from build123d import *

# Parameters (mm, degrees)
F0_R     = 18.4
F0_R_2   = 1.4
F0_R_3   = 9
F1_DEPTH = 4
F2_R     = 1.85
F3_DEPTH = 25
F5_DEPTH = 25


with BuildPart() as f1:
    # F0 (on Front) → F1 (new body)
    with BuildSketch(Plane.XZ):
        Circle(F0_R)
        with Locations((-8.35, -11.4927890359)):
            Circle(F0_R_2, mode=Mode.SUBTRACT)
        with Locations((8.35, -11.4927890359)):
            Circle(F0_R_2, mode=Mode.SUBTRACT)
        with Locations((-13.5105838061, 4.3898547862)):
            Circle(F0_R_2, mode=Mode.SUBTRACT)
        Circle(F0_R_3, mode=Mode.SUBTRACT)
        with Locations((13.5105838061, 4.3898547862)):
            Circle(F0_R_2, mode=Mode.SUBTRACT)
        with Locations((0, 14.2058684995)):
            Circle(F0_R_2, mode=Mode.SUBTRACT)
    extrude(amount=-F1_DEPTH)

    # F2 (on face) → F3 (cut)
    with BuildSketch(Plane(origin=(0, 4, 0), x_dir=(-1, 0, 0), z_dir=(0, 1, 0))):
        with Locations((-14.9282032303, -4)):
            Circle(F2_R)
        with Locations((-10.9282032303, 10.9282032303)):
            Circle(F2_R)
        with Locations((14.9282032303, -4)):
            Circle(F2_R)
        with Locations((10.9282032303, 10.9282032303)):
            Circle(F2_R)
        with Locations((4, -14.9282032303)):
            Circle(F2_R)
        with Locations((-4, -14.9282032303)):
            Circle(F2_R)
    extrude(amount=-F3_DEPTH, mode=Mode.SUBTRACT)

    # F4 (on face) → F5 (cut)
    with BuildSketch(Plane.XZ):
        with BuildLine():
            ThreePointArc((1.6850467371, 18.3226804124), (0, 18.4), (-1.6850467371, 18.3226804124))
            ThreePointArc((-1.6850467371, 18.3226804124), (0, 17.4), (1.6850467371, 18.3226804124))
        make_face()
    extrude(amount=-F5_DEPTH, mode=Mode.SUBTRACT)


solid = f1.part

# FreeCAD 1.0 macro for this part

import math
import FreeCAD as App
import Part
import Sketcher

V = App.Vector

doc = App.newDocument("Part")
body = doc.addObject("PartDesign::Body", "Body")

sketch1 = body.newObject("Sketcher::SketchObject", "Sketch")
sketch1.AttachmentSupport = (doc.getObject("XZ_Plane"), [""])
sketch1.MapMode = "FlatFace"
sketch1.addGeometry([
    Part.Circle(V(0, 0, 0), V(0, 0, 1), 18.4),
    Part.Circle(V(-8.3, -11.5, 0), V(0, 0, 1), 1.4),
    Part.Circle(V(0, 0, 0), V(0, 0, 1), 9),
    Part.Circle(V(8.3, -11.5, 0), V(0, 0, 1), 1.4),
    Part.Circle(V(-13.5, 4.4, 0), V(0, 0, 1), 1.4),
    Part.Circle(V(0, 14.2, 0), V(0, 0, 1), 1.4),
    Part.Circle(V(13.5, 4.4, 0), V(0, 0, 1), 1.4),
], False)
sketch1.addConstraint([
    Sketcher.Constraint("Coincident", 0, 3, -1, 1),
    Sketcher.Constraint("Coincident", 2, 3, -1, 1),
    Sketcher.Constraint("Equal", 1, 3),
    Sketcher.Constraint("Equal", 3, 4),
    Sketcher.Constraint("Equal", 4, 5),
    Sketcher.Constraint("Equal", 5, 6),
    Sketcher.Constraint("Symmetric", 1, 3, 3, 3, -2),
    Sketcher.Constraint("Symmetric", 4, 3, 6, 3, -2),
    Sketcher.Constraint("PointOnObject", 5, 3, -2),
    Sketcher.Constraint("Diameter", 2, 18.0),
    Sketcher.Constraint("Diameter", 0, 36.8),
    Sketcher.Constraint("Diameter", 1, 2.8),
    Sketcher.Constraint("DistanceX", 1, 3, 3, 3, 16.7),
    Sketcher.Constraint("DistanceY", 1, 3, -1, 1, 11.492789),
    Sketcher.Constraint("DistanceY", -1, 1, 5, 3, 14.205868),
    Sketcher.Constraint("DistanceX", 4, 3, -1, 1, 13.510584),
    Sketcher.Constraint("DistanceY", -1, 1, 4, 3, 4.389855),
])
pad1 = body.newObject("PartDesign::Pad", "Pad")
pad1.Profile = sketch1
pad1.Length = 4
pad1.Reversed = True

sketch2 = body.newObject("Sketcher::SketchObject", "Sketch001")
sketch2.AttachmentSupport = (doc.getObject("XZ_Plane"), [""])
sketch2.MapMode = "FlatFace"
sketch2.AttachmentOffset = App.Placement(V(0, 0, -4), App.Rotation())
sketch2.addGeometry([
    Part.Circle(V(14.9, -4, 0), V(0, 0, 1), 1.9),
    Part.Circle(V(10.9, 10.9, 0), V(0, 0, 1), 1.9),
    Part.Circle(V(-14.9, -4, 0), V(0, 0, 1), 1.9),
    Part.Circle(V(-10.9, 10.9, 0), V(0, 0, 1), 1.9),
    Part.Circle(V(-4, -14.9, 0), V(0, 0, 1), 1.9),
    Part.Circle(V(4, -14.9, 0), V(0, 0, 1), 1.9),
], False)
sketch2.addConstraint([
    Sketcher.Constraint("Equal", 0, 1),
    Sketcher.Constraint("Equal", 1, 2),
    Sketcher.Constraint("Equal", 2, 3),
    Sketcher.Constraint("Equal", 3, 4),
    Sketcher.Constraint("Equal", 4, 5),
    Sketcher.Constraint("Symmetric", 0, 3, 2, 3, -2),
    Sketcher.Constraint("Symmetric", 1, 3, 3, 3, -2),
    Sketcher.Constraint("Symmetric", 4, 3, 5, 3, -2),
    Sketcher.Constraint("Diameter", 0, 3.7),
    Sketcher.Constraint("DistanceY", 0, 3, -1, 1, 4.0),
    Sketcher.Constraint("DistanceX", 4, 3, -1, 1, 4.0),
    Sketcher.Constraint("DistanceX", 1, 3, 0, 3, 4.0),
    Sketcher.Constraint("DistanceX", -1, 1, 0, 3, 14.928203),
    Sketcher.Constraint("DistanceY", -1, 1, 1, 3, 10.928203),
    Sketcher.Constraint("DistanceY", 4, 3, -1, 1, 14.928203),
])
pocket1 = body.newObject("PartDesign::Pocket", "Pocket")
pocket1.Profile = sketch2
pocket1.Length = 25
pocket1.Reversed = True

sketch3 = body.newObject("Sketcher::SketchObject", "Sketch002")
sketch3.AttachmentSupport = (doc.getObject("XZ_Plane"), [""])
sketch3.MapMode = "FlatFace"
sketch3.addGeometry([
    Part.ArcOfCircle(Part.Circle(V(0, 0, 0), V(0, 0, 1), 18.4), math.radians(84.75), math.radians(95.25)),
    Part.ArcOfCircle(Part.Circle(V(0, 19.4, 0), V(0, 0, 1), 2), math.radians(-147), math.radians(-33)),
], False)
sketch3.addConstraint([
    Sketcher.Constraint("Coincident", 0, 1, 1, 2),
    Sketcher.Constraint("Coincident", 1, 1, 0, 2),
    Sketcher.Constraint("Coincident", 0, 3, -1, 1),
    Sketcher.Constraint("PointOnObject", 1, 3, -2),
    Sketcher.Constraint("Radius", 1, 2.0),
    Sketcher.Constraint("Radius", 0, 18.4),
    Sketcher.Constraint("DistanceY", -1, 1, 1, 3, 19.4),
])
pocket2 = body.newObject("PartDesign::Pocket", "Pocket001")
pocket2.Profile = sketch3
pocket2.Length = 25

doc.recompute()
